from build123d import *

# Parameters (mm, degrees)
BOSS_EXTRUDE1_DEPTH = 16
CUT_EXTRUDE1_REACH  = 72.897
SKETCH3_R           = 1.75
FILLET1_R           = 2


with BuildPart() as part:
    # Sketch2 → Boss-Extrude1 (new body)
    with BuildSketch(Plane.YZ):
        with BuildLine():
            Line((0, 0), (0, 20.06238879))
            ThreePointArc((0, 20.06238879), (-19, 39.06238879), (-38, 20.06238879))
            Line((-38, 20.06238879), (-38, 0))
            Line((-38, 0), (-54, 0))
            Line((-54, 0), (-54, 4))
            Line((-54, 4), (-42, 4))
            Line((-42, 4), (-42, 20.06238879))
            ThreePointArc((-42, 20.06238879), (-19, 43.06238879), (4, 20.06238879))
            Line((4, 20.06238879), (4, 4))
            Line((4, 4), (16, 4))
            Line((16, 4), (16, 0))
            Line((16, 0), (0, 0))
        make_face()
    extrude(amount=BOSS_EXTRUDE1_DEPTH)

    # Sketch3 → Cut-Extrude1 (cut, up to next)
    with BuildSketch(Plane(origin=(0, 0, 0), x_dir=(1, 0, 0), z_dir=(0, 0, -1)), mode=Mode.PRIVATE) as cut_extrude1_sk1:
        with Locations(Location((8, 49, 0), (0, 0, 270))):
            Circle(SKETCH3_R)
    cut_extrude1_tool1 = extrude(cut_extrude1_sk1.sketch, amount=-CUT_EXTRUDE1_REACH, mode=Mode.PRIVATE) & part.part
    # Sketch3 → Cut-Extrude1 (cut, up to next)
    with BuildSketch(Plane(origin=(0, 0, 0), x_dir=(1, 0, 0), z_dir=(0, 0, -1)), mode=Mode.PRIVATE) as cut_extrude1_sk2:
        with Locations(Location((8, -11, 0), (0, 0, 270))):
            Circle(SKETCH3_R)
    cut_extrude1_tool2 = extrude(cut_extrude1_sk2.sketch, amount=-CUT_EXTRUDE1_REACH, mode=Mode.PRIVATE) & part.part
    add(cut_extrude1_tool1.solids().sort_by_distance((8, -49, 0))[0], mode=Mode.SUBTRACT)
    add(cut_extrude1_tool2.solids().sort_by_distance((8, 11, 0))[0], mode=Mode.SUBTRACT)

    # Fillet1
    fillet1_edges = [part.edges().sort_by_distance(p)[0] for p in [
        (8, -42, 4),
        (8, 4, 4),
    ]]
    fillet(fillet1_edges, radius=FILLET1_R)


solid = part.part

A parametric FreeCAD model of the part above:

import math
import FreeCAD as App
import Part
import Sketcher

V = App.Vector
Q = App.Units.Quantity


def edges_at(feature, points):
    """Names of the edges that pass closest to the given points."""
    edges = feature.Shape.Edges
    near = lambda p: min(range(len(edges)), key=lambda i: edges[i].distToShape(Part.Vertex(*p))[0])
    return sorted({f"Edge{near(p) + 1}" for p in points})

doc = App.newDocument("Part")
body = doc.addObject("PartDesign::Body", "Body")

sketch1 = body.newObject("Sketcher::SketchObject", "Sketch")
sketch1.AttachmentSupport = (doc.getObject("YZ_Plane"), [""])
sketch1.MapMode = "FlatFace"
sketch1.addGeometry([
    Part.LineSegment(V(0, 20.1, 0), V(0, 0, 0)),
    Part.LineSegment(V(0, 0, 0), V(16, 0, 0)),
    Part.LineSegment(V(16, 0, 0), V(16, 4, 0)),
    Part.LineSegment(V(16, 4, 0), V(4, 4, 0)),
    Part.LineSegment(V(4, 4, 0), V(4, 20.1, 0)),
    Part.ArcOfCircle(Part.Circle(V(-19, 20.1, 0), V(0, 0, 1), 23), math.radians(0), math.radians(180)),
    Part.LineSegment(V(-42, 20.1, 0), V(-42, 4, 0)),
    Part.LineSegment(V(-42, 4, 0), V(-54, 4, 0)),
    Part.LineSegment(V(-54, 4, 0), V(-54, 0, 0)),
    Part.LineSegment(V(-54, 0, 0), V(-38, 0, 0)),
    Part.LineSegment(V(-38, 0, 0), V(-38, 20.1, 0)),
    Part.ArcOfCircle(Part.Circle(V(-19, 20.1, 0), V(0, 0, 1), 19), math.radians(0), math.radians(180)),
], False)
sketch1.addConstraint([
    Sketcher.Constraint("Coincident", 0, 2, 1, 1),
    Sketcher.Constraint("Coincident", 1, 2, 2, 1),
    Sketcher.Constraint("Coincident", 2, 2, 3, 1),
    Sketcher.Constraint("Coincident", 3, 2, 4, 1),
    Sketcher.Constraint("Tangent", 4, 2, 5, 1),
    Sketcher.Constraint("Tangent", 5, 2, 6, 1),
    Sketcher.Constraint("Coincident", 6, 2, 7, 1),
    Sketcher.Constraint("Coincident", 7, 2, 8, 1),
    Sketcher.Constraint("Coincident", 8, 2, 9, 1),
    Sketcher.Constraint("Coincident", 9, 2, 10, 1),
    Sketcher.Constraint("Tangent", 10, 2, 11, 2),
    Sketcher.Constraint("Tangent", 11, 1, 0, 1),
    Sketcher.Constraint("Vertical", 0),
    Sketcher.Constraint("Horizontal", 1),
    Sketcher.Constraint("Vertical", 2),
    Sketcher.Constraint("Horizontal", 3),
    Sketcher.Constraint("Vertical", 4),
    Sketcher.Constraint("Vertical", 6),
    Sketcher.Constraint("Horizontal", 7),
    Sketcher.Constraint("Vertical", 8),
    Sketcher.Constraint("Horizontal", 9),
    Sketcher.Constraint("Vertical", 10),
    Sketcher.Constraint("Coincident", 0, 2, -1, 1),
    Sketcher.Constraint("Coincident", 11, 3, 5, 3),
    Sketcher.Constraint("PointOnObject", 8, 2, -1),
    Sketcher.Constraint("Horizontal", 3, 2, 6, 2),
    Sketcher.Constraint("Equal", 3, 7),
    Sketcher.Constraint("Radius", 5, Q("23 mm")),
    Sketcher.Constraint("Radius", 11, Q("19 mm")),
    Sketcher.Constraint("DistanceX", 1, 1, 1, 2, Q("16 mm")),
    Sketcher.Constraint("DistanceY", 2, 1, 2, 2, Q("4 mm")),
    Sketcher.Constraint("DistanceY", 0, 2, 0, 1, Q("20.062389 mm")),
])
pad1 = body.newObject("PartDesign::Pad", "Pad")
pad1.Profile = sketch1
pad1.Length = 16

sketch2 = body.newObject("Sketcher::SketchObject", "Sketch001")
sketch2.AttachmentSupport = (doc.getObject("XY_Plane"), [""])
sketch2.MapMode = "FlatFace"
sketch2.addGeometry(Part.Circle(V(8, -49, 0), V(0, 0, 1), 1.8), False)
sketch2.addConstraint([
    Sketcher.Constraint("Diameter", 0, Q("3.5 mm")),
    Sketcher.Constraint("DistanceX", -1, 1, 0, 3, Q("8 mm")),
    Sketcher.Constraint("DistanceY", 0, 3, -1, 1, Q("49 mm")),
])
pocket1 = body.newObject("PartDesign::Pocket", "Pocket")
pocket1.Profile = sketch2
pocket1.Type = "UpToFirst"
pocket1.Reversed = True

sketch3 = body.newObject("Sketcher::SketchObject", "Sketch002")
sketch3.AttachmentSupport = (doc.getObject("XY_Plane"), [""])
sketch3.MapMode = "FlatFace"
sketch3.addGeometry(Part.Circle(V(8, 11, 0), V(0, 0, 1), 1.8), False)
sketch3.addConstraint([
    Sketcher.Constraint("Diameter", 0, Q("3.5 mm")),
    Sketcher.Constraint("DistanceX", -1, 1, 0, 3, Q("8 mm")),
    Sketcher.Constraint("DistanceY", -1, 1, 0, 3, Q("11 mm")),
])
pocket2 = body.newObject("PartDesign::Pocket", "Pocket001")
pocket2.Profile = sketch3
pocket2.Type = "UpToFirst"
pocket2.Reversed = True
doc.recompute()

fillet = body.newObject("PartDesign::Fillet", "Fillet")
fillet.Base = (pocket2, edges_at(pocket2, [(8, -42, 4), (8, 4, 4)]))
fillet.Radius = 2

doc.recompute()
